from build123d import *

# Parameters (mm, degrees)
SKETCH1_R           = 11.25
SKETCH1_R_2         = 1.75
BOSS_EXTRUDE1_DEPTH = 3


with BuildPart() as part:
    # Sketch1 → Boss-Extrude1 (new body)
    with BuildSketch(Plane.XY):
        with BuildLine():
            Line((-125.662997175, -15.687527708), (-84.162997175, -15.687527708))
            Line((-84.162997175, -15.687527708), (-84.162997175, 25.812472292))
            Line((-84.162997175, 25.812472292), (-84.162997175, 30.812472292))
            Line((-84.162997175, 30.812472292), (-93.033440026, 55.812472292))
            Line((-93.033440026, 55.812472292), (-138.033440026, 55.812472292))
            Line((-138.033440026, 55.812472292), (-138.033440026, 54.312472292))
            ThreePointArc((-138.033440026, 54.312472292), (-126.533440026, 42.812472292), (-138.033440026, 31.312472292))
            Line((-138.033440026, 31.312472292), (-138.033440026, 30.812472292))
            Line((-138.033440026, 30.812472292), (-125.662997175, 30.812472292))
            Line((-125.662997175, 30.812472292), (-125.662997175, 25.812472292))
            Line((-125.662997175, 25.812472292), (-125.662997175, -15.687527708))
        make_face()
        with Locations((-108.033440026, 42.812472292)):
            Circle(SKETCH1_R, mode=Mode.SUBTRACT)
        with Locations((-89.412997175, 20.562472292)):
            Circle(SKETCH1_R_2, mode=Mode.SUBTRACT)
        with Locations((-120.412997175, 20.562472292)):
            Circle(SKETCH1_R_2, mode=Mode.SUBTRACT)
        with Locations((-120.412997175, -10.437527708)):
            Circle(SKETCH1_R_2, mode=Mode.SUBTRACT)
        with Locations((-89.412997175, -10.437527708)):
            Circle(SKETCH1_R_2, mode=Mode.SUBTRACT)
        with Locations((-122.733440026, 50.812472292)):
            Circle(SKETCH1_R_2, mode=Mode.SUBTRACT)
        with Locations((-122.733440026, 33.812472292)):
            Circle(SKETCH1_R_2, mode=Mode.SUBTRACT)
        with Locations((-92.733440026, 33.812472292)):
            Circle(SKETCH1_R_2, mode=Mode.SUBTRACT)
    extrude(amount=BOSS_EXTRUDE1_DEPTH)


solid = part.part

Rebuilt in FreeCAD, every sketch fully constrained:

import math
import FreeCAD as App
import Part
import Sketcher

V = App.Vector
Q = App.Units.Quantity

doc = App.newDocument("Part")
body = doc.addObject("PartDesign::Body", "Body")

sketch1 = body.newObject("Sketcher::SketchObject", "Sketch")
sketch1.AttachmentSupport = (doc.getObject("XY_Plane"), [""])
sketch1.MapMode = "FlatFace"
sketch1.addGeometry([
    Part.LineSegment(V(-125.7, -15.7, 0), V(-84.2, -15.7, 0)),
    Part.LineSegment(V(-84.2, -15.7, 0), V(-84.2, 30.8, 0)),
    Part.LineSegment(V(-84.2, 30.8, 0), V(-93, 55.8, 0)),
    Part.LineSegment(V(-93, 55.8, 0), V(-138, 55.8, 0)),
    Part.LineSegment(V(-138, 55.8, 0), V(-138, 54.3, 0)),
    Part.ArcOfCircle(Part.Circle(V(-138, 42.8, 0), V(0, 0, 1), 11.5), math.radians(-90), math.radians(90)),
    Part.LineSegment(V(-138, 31.3, 0), V(-138, 30.8, 0)),
    Part.LineSegment(V(-138, 30.8, 0), V(-125.7, 30.8, 0)),
    Part.LineSegment(V(-125.7, 30.8, 0), V(-125.7, -15.7, 0)),
    Part.Circle(V(-120.4, -10.4, 0), V(0, 0, 1), 1.8),
    Part.Circle(V(-120.4, 20.6, 0), V(0, 0, 1), 1.8),
    Part.Circle(V(-89.4, -10.4, 0), V(0, 0, 1), 1.8),
    Part.Circle(V(-89.4, 20.6, 0), V(0, 0, 1), 1.8),
    Part.Circle(V(-122.7, 33.8, 0), V(0, 0, 1), 1.8),
    Part.Circle(V(-122.7, 50.8, 0), V(0, 0, 1), 1.8),
    Part.Circle(V(-108, 42.8, 0), V(0, 0, 1), 11.2),
    Part.Circle(V(-92.7, 33.8, 0), V(0, 0, 1), 1.8),
], False)
sketch1.addConstraint([
    Sketcher.Constraint("Coincident", 0, 2, 1, 1),
    Sketcher.Constraint("Coincident", 1, 2, 2, 1),
    Sketcher.Constraint("Coincident", 2, 2, 3, 1),
    Sketcher.Constraint("Coincident", 3, 2, 4, 1),
    Sketcher.Constraint("Coincident", 4, 2, 5, 2),
    Sketcher.Constraint("Coincident", 5, 1, 6, 1),
    Sketcher.Constraint("Coincident", 6, 2, 7, 1),
    Sketcher.Constraint("Coincident", 7, 2, 8, 1),
    Sketcher.Constraint("Coincident", 8, 2, 0, 1),
    Sketcher.Constraint("Horizontal", 0),
    Sketcher.Constraint("Vertical", 1),
    Sketcher.Constraint("Horizontal", 3),
    Sketcher.Constraint("Vertical", 4),
    Sketcher.Constraint("Vertical", 6),
    Sketcher.Constraint("Horizontal", 7),
    Sketcher.Constraint("Vertical", 8),
    Sketcher.Constraint("Equal", 9, 10),
    Sketcher.Constraint("Equal", 10, 11),
    Sketcher.Constraint("Equal", 11, 12),
    Sketcher.Constraint("Equal", 12, 13),
    Sketcher.Constraint("Equal", 13, 14),
    Sketcher.Constraint("Equal", 14, 16),
    Sketcher.Constraint("Horizontal", 9, 3, 11, 3),
    Sketcher.Constraint("Horizontal", 10, 3, 12, 3),
    Sketcher.Constraint("Horizontal", 5, 3, 15, 3),
    Sketcher.Constraint("Horizontal", 13, 3, 16, 3),
    Sketcher.Constraint("Horizontal", 1, 2, 6, 2),
    Sketcher.Constraint("Vertical", 9, 3, 10, 3),
    Sketcher.Constraint("Vertical", 11, 3, 12, 3),
    Sketcher.Constraint("Vertical", 13, 3, 14, 3),
    Sketcher.Constraint("Vertical", 5, 3, 3, 2),
    Sketcher.Constraint("Vertical", 4, 2, 5, 1),
    Sketcher.Constraint("Diameter", 9, Q("3.5 mm")),
    Sketcher.Constraint("Diameter", 15, Q("22.5 mm")),
    Sketcher.Constraint("Radius", 5, Q("11.5 mm")),
    Sketcher.Constraint("DistanceX", 3, 2, 3, 1, Q("45 mm")),
    Sketcher.Constraint("DistanceX", 0, 1, 0, 2, Q("41.5 mm")),
    Sketcher.Constraint("DistanceY", 1, 1, 1, 2, Q("46.5 mm")),
    Sketcher.Constraint("DistanceY", 4, 2, 4, 1, Q("1.5 mm")),
    Sketcher.Constraint("DistanceY", 6, 2, 6, 1, Q("0.5 mm")),
    Sketcher.Constraint("DistanceY", 9, 3, 10, 3, Q("31 mm")),
    Sketcher.Constraint("DistanceX", 9, 3, 11, 3, Q("31 mm")),
    Sketcher.Constraint("DistanceY", 13, 3, 5, 3, Q("9 mm")),
    Sketcher.Constraint("DistanceY", 13, 3, 14, 3, Q("17 mm")),
    Sketcher.Constraint("DistanceX", 5, 3, 15, 3, Q("30 mm")),
    Sketcher.Constraint("DistanceX", 13, 3, 16, 3, Q("30 mm")),
    Sketcher.Constraint("DistanceX", 5, 3, 13, 3, Q("15.3 mm")),
    Sketcher.Constraint("DistanceY", 9, 3, 5, 3, Q("53.25 mm")),
    Sketcher.Constraint("DistanceX", 11, 3, 0, 2, Q("5.25 mm")),
    Sketcher.Constraint("DistanceX", 7, 1, 7, 2, Q("12.370443 mm")),
    Sketcher.Constraint("DistanceX", 5, 3, -1, 1, Q("138.03344 mm")),
    Sketcher.Constraint("DistanceY", -1, 1, 5, 3, Q("42.812472 mm")),
])
pad1 = body.newObject("PartDesign::Pad", "Pad")
pad1.Profile = sketch1
pad1.Length = 3

doc.recompute()
